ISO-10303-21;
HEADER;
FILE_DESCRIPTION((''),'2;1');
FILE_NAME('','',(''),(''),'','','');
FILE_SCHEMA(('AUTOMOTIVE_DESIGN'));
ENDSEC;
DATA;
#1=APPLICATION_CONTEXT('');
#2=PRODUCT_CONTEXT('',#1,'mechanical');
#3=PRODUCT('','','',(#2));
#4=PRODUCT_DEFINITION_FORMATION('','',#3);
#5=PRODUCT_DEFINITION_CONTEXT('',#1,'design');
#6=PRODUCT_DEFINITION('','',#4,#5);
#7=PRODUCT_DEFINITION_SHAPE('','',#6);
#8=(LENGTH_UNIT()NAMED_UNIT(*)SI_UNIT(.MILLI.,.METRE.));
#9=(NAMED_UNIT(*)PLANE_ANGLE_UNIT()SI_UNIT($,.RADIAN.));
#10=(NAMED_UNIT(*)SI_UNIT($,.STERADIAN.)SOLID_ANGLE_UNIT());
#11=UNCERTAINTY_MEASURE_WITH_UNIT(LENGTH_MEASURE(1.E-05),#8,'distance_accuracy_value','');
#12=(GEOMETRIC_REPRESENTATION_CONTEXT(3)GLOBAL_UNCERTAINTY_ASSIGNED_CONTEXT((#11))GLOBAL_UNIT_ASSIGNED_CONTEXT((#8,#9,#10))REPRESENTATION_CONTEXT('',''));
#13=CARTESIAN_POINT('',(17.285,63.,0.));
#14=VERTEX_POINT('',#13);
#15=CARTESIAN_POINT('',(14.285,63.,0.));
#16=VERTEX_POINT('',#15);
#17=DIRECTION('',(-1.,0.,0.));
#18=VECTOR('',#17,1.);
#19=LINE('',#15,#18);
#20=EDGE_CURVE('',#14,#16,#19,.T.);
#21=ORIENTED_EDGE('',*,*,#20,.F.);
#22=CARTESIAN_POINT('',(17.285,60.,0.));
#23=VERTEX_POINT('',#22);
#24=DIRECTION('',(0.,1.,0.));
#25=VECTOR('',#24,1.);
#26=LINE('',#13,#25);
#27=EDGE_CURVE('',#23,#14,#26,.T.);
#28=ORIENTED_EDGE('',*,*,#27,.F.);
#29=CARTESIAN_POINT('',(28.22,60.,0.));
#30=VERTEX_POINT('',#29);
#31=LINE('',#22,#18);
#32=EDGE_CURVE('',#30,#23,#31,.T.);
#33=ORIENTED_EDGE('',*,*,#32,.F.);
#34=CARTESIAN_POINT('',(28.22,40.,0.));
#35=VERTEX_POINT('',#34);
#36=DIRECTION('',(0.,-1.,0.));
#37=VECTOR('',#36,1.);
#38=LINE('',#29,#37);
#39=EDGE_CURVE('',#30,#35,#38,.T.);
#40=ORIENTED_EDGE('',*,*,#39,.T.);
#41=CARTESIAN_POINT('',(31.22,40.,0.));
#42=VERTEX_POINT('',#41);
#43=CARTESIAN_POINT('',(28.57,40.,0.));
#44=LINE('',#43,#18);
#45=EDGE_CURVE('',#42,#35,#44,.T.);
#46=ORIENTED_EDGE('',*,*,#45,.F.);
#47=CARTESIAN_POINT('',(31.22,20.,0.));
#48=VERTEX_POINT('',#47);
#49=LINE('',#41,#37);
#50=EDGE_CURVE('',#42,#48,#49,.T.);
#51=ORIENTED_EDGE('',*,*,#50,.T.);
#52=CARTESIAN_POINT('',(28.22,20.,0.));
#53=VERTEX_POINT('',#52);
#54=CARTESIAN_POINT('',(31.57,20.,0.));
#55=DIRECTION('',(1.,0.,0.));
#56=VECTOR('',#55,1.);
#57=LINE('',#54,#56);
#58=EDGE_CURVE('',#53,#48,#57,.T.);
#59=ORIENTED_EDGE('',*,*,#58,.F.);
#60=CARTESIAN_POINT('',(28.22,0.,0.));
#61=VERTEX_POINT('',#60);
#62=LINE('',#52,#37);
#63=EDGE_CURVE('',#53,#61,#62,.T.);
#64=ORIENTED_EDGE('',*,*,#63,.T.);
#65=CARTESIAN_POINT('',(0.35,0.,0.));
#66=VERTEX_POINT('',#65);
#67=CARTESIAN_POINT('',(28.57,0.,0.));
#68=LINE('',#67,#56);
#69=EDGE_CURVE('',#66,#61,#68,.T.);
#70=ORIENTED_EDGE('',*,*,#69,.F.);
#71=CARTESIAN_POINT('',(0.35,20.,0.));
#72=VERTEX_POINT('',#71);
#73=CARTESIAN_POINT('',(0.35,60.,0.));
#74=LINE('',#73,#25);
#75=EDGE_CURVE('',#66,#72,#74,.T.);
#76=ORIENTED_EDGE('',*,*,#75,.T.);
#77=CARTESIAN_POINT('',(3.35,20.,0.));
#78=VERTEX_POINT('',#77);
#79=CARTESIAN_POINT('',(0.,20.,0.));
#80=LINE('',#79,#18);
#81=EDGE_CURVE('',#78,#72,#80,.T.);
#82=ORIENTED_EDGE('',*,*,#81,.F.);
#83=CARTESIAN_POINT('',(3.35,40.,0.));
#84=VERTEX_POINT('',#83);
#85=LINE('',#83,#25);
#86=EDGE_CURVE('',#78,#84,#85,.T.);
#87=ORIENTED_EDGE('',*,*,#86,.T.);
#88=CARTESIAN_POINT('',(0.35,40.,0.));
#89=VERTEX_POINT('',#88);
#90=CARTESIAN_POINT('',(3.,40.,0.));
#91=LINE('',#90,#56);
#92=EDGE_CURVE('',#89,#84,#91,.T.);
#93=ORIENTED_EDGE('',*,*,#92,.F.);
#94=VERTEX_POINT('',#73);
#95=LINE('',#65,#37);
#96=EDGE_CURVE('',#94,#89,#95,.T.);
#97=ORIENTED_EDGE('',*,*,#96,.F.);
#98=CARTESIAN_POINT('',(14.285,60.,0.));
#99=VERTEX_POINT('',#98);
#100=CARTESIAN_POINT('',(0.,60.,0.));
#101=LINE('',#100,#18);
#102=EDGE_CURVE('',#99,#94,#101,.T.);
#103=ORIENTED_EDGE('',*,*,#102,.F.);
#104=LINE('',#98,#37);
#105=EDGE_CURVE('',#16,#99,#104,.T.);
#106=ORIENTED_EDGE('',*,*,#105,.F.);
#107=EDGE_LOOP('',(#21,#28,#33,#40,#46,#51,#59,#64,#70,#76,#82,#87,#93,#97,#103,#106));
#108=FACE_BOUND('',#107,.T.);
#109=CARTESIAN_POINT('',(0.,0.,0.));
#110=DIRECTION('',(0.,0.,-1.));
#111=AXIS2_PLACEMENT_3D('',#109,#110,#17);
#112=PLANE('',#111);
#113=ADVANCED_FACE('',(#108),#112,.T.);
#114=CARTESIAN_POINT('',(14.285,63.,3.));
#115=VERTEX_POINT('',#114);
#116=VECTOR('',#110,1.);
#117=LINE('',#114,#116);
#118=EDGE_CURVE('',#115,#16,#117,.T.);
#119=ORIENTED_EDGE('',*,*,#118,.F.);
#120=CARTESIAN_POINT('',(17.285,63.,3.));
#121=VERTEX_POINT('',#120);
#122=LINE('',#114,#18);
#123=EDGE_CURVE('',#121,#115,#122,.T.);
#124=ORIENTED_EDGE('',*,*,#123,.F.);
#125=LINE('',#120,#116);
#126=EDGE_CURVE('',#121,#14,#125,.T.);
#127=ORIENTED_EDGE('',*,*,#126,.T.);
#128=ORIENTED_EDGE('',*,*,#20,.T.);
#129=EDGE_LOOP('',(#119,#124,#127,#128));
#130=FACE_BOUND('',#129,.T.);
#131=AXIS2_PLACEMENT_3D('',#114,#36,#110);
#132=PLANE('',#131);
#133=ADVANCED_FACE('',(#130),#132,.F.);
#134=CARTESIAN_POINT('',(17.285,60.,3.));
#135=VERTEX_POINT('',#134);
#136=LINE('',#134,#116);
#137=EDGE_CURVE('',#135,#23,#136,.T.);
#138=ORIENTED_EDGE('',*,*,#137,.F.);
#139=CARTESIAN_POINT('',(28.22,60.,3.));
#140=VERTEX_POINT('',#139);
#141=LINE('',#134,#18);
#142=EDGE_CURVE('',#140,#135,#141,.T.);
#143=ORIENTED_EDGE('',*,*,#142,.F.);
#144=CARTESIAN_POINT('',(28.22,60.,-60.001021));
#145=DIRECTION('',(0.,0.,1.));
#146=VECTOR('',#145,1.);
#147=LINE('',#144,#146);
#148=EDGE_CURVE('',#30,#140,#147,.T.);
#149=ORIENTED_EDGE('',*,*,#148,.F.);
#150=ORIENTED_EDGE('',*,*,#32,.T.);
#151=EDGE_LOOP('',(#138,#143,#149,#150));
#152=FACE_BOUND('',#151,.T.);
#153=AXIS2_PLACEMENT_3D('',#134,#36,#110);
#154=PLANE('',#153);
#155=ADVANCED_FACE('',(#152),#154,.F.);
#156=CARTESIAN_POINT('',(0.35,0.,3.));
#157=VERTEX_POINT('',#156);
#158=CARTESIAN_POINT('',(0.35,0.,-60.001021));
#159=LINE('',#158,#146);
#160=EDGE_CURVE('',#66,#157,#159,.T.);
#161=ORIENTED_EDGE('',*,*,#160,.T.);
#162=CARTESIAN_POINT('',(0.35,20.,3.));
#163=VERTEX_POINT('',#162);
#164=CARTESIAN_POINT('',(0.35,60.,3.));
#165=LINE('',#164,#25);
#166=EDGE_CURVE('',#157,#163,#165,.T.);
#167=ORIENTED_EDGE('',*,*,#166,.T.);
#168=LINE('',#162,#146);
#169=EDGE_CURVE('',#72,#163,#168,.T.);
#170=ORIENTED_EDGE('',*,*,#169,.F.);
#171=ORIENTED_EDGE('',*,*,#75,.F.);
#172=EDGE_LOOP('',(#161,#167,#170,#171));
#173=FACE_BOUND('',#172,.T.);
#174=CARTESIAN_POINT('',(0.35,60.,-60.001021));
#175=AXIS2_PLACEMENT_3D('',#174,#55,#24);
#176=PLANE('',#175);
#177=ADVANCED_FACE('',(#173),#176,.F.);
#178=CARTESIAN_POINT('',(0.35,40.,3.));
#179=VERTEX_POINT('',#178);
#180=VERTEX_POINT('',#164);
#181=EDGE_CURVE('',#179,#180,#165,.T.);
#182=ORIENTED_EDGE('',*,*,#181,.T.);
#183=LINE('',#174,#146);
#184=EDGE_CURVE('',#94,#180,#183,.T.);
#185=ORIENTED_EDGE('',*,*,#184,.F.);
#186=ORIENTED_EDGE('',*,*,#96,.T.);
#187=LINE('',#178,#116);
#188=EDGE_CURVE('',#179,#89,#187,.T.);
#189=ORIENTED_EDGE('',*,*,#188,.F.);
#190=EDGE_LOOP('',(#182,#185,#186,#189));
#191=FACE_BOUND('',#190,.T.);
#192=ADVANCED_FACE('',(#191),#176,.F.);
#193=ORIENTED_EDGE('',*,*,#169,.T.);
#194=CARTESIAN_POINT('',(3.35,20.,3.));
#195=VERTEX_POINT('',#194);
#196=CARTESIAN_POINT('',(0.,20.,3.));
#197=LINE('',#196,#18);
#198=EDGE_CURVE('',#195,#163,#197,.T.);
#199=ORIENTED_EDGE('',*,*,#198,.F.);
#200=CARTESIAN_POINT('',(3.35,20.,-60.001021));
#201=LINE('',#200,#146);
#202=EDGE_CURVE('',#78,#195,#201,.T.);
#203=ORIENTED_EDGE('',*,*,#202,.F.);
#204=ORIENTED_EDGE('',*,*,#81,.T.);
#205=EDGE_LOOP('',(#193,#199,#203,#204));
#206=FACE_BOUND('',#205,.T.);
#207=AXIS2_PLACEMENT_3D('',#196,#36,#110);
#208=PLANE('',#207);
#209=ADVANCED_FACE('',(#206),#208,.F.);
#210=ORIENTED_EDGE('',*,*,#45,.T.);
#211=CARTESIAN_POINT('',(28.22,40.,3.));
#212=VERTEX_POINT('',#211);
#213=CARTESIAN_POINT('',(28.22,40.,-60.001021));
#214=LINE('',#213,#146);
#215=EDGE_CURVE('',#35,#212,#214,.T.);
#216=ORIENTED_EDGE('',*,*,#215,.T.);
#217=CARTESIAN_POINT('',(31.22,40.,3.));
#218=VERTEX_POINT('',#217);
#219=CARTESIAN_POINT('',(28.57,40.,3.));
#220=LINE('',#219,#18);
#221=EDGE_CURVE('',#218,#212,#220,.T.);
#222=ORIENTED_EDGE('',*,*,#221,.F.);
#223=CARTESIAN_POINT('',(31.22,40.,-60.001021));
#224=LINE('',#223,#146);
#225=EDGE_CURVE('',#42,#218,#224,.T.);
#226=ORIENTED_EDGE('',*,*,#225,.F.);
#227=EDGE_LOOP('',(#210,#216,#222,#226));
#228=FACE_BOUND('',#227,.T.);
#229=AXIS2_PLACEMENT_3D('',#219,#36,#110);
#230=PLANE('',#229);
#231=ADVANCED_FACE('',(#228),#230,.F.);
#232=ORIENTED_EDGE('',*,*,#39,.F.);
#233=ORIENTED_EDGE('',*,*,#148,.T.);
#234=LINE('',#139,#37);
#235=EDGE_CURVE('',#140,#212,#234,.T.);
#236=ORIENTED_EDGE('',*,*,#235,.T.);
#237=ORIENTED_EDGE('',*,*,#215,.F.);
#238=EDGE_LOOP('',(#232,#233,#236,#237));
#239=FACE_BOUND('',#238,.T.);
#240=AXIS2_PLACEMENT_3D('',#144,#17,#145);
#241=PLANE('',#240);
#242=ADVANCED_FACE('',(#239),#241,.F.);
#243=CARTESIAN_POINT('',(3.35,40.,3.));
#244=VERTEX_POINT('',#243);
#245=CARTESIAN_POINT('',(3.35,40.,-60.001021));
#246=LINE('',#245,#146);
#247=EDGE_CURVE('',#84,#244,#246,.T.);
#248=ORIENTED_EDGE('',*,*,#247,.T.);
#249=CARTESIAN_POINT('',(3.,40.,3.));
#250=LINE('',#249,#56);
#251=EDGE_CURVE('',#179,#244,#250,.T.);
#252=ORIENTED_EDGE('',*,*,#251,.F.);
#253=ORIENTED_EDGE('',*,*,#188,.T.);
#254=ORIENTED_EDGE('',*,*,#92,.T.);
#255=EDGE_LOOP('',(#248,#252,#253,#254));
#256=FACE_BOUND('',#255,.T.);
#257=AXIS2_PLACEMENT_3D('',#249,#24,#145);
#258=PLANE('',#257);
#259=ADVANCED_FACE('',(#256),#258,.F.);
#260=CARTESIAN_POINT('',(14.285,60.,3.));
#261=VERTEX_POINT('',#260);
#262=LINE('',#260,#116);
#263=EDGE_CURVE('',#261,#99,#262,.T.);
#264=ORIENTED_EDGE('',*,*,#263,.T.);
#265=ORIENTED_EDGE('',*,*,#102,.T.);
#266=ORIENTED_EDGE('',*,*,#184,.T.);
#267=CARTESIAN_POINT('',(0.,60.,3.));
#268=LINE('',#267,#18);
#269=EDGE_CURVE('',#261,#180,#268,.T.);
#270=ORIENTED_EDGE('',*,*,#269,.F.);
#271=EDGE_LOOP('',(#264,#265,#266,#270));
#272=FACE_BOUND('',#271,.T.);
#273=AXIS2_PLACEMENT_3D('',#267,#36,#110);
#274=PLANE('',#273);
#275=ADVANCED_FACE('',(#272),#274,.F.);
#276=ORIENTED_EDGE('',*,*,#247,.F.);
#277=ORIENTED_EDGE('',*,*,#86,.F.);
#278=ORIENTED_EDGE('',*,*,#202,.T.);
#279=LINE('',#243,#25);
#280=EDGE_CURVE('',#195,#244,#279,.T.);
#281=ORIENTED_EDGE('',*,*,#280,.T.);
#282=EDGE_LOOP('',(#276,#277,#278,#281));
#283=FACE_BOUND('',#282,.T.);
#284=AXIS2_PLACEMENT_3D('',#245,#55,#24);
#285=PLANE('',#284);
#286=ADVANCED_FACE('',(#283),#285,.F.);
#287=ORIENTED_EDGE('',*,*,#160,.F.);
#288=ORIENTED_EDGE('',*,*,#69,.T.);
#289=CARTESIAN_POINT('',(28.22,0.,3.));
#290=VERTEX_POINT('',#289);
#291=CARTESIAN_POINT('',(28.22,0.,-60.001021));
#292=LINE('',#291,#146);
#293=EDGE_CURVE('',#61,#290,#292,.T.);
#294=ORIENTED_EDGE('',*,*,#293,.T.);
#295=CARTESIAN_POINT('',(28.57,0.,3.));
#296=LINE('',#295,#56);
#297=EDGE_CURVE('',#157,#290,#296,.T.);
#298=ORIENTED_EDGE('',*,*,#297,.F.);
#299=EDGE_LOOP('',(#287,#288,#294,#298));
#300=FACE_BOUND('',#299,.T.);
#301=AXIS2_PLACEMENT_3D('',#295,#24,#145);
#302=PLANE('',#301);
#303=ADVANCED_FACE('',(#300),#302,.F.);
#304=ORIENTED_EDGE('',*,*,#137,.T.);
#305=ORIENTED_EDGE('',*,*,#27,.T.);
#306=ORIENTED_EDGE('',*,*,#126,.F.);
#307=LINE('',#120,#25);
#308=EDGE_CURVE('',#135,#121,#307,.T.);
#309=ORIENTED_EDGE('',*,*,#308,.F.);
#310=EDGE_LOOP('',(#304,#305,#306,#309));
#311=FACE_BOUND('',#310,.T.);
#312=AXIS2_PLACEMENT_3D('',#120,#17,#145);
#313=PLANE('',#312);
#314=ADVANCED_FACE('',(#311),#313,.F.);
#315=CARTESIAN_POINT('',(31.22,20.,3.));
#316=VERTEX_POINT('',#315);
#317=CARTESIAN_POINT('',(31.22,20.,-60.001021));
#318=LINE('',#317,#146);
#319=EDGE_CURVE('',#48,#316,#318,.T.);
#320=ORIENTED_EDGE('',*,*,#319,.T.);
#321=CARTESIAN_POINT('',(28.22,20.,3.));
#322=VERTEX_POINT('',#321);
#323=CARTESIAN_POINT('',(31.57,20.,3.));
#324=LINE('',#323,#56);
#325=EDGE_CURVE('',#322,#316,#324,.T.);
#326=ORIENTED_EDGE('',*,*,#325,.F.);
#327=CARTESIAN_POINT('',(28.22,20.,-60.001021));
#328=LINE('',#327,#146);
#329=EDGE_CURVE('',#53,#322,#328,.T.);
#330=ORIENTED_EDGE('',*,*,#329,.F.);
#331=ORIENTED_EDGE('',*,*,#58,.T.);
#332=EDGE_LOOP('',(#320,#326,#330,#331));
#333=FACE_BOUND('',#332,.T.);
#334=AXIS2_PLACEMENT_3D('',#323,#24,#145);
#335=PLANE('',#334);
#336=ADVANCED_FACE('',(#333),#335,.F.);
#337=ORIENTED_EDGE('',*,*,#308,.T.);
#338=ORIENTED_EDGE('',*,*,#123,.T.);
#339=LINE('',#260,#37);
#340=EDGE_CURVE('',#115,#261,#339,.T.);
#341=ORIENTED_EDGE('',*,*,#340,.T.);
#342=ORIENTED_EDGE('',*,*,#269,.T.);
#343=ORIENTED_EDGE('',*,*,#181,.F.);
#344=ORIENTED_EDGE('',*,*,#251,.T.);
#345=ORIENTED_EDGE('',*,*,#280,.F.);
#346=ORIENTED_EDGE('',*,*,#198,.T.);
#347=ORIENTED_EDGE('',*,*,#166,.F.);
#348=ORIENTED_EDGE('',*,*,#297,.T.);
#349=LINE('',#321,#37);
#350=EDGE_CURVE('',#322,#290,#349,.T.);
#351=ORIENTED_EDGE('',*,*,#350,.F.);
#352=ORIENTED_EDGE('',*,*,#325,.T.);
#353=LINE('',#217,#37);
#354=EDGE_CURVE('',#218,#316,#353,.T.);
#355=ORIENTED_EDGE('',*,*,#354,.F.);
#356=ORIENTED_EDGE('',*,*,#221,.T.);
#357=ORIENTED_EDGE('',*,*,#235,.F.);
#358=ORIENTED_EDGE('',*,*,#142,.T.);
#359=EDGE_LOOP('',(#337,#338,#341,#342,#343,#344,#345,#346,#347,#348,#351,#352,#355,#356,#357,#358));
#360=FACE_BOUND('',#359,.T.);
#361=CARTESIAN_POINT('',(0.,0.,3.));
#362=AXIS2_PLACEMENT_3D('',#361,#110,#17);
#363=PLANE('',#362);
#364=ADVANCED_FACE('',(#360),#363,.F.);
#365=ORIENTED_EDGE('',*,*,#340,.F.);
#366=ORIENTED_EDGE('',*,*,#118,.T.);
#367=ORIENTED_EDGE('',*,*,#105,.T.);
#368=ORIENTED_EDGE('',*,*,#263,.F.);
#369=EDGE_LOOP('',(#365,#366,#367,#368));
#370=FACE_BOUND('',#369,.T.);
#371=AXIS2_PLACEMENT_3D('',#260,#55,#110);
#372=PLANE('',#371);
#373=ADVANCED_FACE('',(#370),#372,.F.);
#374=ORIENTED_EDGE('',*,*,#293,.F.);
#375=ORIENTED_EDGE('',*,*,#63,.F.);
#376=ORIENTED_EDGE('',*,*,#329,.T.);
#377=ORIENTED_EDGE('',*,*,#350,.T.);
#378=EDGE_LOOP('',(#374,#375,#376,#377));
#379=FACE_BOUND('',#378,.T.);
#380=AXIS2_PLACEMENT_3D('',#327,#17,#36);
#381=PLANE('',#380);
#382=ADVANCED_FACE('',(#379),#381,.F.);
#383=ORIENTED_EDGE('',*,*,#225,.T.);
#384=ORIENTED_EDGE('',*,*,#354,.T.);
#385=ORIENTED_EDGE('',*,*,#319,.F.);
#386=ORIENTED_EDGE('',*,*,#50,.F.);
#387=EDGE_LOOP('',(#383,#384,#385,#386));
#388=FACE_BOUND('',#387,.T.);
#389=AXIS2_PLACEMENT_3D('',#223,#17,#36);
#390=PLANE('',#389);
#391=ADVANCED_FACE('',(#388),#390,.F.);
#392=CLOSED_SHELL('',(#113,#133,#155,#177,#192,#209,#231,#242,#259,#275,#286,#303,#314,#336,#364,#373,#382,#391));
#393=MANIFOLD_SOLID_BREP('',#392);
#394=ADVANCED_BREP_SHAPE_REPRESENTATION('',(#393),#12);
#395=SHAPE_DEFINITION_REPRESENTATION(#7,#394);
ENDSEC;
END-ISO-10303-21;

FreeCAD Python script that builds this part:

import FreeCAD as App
import Part
import Sketcher

V = App.Vector

doc = App.newDocument("Part")
body = doc.addObject("PartDesign::Body", "Body")

# Sketch on XY plane
sketch1 = body.newObject("Sketcher::SketchObject", "Sketch")
sketch1.AttachmentSupport = (doc.getObject("XY_Plane"), [""])
sketch1.MapMode = "FlatFace"
sketch1.addGeometry([
    Part.LineSegment(V(0, 0, 0), V(28.6, 0, 0)),  # 0
    Part.LineSegment(V(28.6, 0, 0), V(28.6, 20, 0)),  # 1
    Part.LineSegment(V(28.6, 20, 0), V(31.6, 20, 0)),  # 2
    Part.LineSegment(V(31.6, 20, 0), V(31.6, 40, 0)),  # 3
    Part.LineSegment(V(31.6, 40, 0), V(28.6, 40, 0)),  # 4
    Part.LineSegment(V(28.6, 40, 0), V(28.6, 60, 0)),  # 5
    Part.LineSegment(V(28.6, 60, 0), V(17.3, 60, 0)),  # 6
    Part.LineSegment(V(17.3, 60, 0), V(17.3, 63, 0)),  # 7
    Part.LineSegment(V(17.3, 63, 0), V(14.3, 63, 0)),  # 8
    Part.LineSegment(V(14.3, 63, 0), V(14.3, 60, 0)),  # 9
    Part.LineSegment(V(14.3, 60, 0), V(0, 60, 0)),  # 10
    Part.LineSegment(V(0, 60, 0), V(0, 40, 0)),  # 11
    Part.LineSegment(V(0, 40, 0), V(3, 40, 0)),  # 12
    Part.LineSegment(V(3, 40, 0), V(3, 20, 0)),  # 13
    Part.LineSegment(V(3, 20, 0), V(0, 20, 0)),  # 14
    Part.LineSegment(V(0, 20, 0), V(0, 0, 0)),  # 15
], False)
sketch1.addConstraint([
    Sketcher.Constraint("Coincident", 0, 2, 1, 1),
    Sketcher.Constraint("Coincident", 1, 2, 2, 1),
    Sketcher.Constraint("Coincident", 2, 2, 3, 1),
    Sketcher.Constraint("Coincident", 3, 2, 4, 1),
    Sketcher.Constraint("Coincident", 4, 2, 5, 1),
    Sketcher.Constraint("Coincident", 5, 2, 6, 1),
    Sketcher.Constraint("Coincident", 6, 2, 7, 1),
    Sketcher.Constraint("Coincident", 7, 2, 8, 1),
    Sketcher.Constraint("Coincident", 8, 2, 9, 1),
    Sketcher.Constraint("Coincident", 9, 2, 10, 1),
    Sketcher.Constraint("Coincident", 10, 2, 11, 1),
    Sketcher.Constraint("Coincident", 11, 2, 12, 1),
    Sketcher.Constraint("Coincident", 12, 2, 13, 1),
    Sketcher.Constraint("Coincident", 13, 2, 14, 1),
    Sketcher.Constraint("Coincident", 14, 2, 15, 1),
    Sketcher.Constraint("Coincident", 15, 2, 0, 1),
    Sketcher.Constraint("Horizontal", 0),
    Sketcher.Constraint("Vertical", 1),
    Sketcher.Constraint("Horizontal", 2),
    Sketcher.Constraint("Vertical", 3),
    Sketcher.Constraint("Horizontal", 4),
    Sketcher.Constraint("Vertical", 5),
    Sketcher.Constraint("Horizontal", 6),
    Sketcher.Constraint("Vertical", 7),
    Sketcher.Constraint("Horizontal", 8),
    Sketcher.Constraint("Vertical", 9),
    Sketcher.Constraint("Horizontal", 10),
    Sketcher.Constraint("Vertical", 11),
    Sketcher.Constraint("Horizontal", 12),
    Sketcher.Constraint("Vertical", 13),
    Sketcher.Constraint("Horizontal", 14),
    Sketcher.Constraint("Vertical", 15),
    Sketcher.Constraint("Coincident", 15, 2, -1, 1),
    Sketcher.Constraint("PointOnObject", 10, 2, -2),
    Sketcher.Constraint("Horizontal", 6, 2, 9, 2),
    Sketcher.Constraint("Horizontal", 4, 2, 11, 2),
    Sketcher.Constraint("Horizontal", 2, 2, 13, 2),
    Sketcher.Constraint("Vertical", 1, 2, 4, 2),
    Sketcher.Constraint("Equal", 4, 8),
    Sketcher.Constraint("Equal", 8, 12),
    Sketcher.Constraint("Equal", 1, 3),
    Sketcher.Constraint("Equal", 3, 5),
    Sketcher.Constraint("Equal", 14, 7),
    Sketcher.Constraint("DistanceX", 2, 1, 2, 2, 3.0),
    Sketcher.Constraint("DistanceY", 1, 1, 1, 2, 20.0),
    Sketcher.Constraint("DistanceX", 0, 1, 0, 2, 28.57),
    Sketcher.Constraint("DistanceX", 6, 2, 6, 1, 11.285),
])
pad1 = body.newObject("PartDesign::Pad", "Pad")
pad1.Profile = sketch1
pad1.Length = 3

# Sketch on XY plane
sketch2 = body.newObject("Sketcher::SketchObject", "Sketch001")
sketch2.AttachmentSupport = (doc.getObject("XY_Plane"), [""])
sketch2.MapMode = "FlatFace"
sketch2.AttachmentOffset = App.Placement(V(0, 0, 3), App.Rotation())
sketch2.addGeometry([
    Part.LineSegment(V(0, 60, 0), V(0, 0, 0)),  # 0
    Part.LineSegment(V(0, 0, 0), V(0.35, 0, 0)),  # 1
    Part.LineSegment(V(0.35, 0, 0), V(0.35, 60, 0)),  # 2
    Part.LineSegment(V(0.35, 60, 0), V(0, 60, 0)),  # 3
    Part.LineSegment(V(3, 40, 0), V(3, 20, 0)),  # 4
    Part.LineSegment(V(3, 20, 0), V(3.35, 20, 0)),  # 5
    Part.LineSegment(V(3.35, 20, 0), V(3.35, 40, 0)),  # 6
    Part.LineSegment(V(3.35, 40, 0), V(3, 40, 0)),  # 7
    Part.LineSegment(V(28.22, 60, 0), V(28.22, 40, 0)),  # 8
    Part.LineSegment(V(28.22, 40, 0), V(28.57, 40, 0)),  # 9
    Part.LineSegment(V(28.57, 40, 0), V(28.57, 60, 0)),  # 10
    Part.LineSegment(V(28.57, 60, 0), V(28.22, 60, 0)),  # 11
    Part.LineSegment(V(31.22, 40, 0), V(31.22, 20, 0)),  # 12
    Part.LineSegment(V(31.22, 20, 0), V(31.57, 20, 0)),  # 13
    Part.LineSegment(V(31.57, 20, 0), V(31.57, 40, 0)),  # 14
    Part.LineSegment(V(31.57, 40, 0), V(31.22, 40, 0)),  # 15
    Part.LineSegment(V(28.22, 20, 0), V(28.22, 0, 0)),  # 16
    Part.LineSegment(V(28.22, 0, 0), V(28.57, 0, 0)),  # 17
    Part.LineSegment(V(28.57, 0, 0), V(28.57, 20, 0)),  # 18
    Part.LineSegment(V(28.57, 20, 0), V(28.22, 20, 0)),  # 19
], False)
sketch2.addConstraint([
    Sketcher.Constraint("Coincident", 0, 2, 1, 1),
    Sketcher.Constraint("Coincident", 1, 2, 2, 1),
    Sketcher.Constraint("Coincident", 2, 2, 3, 1),
    Sketcher.Constraint("Coincident", 3, 2, 0, 1),
    Sketcher.Constraint("Coincident", 4, 2, 5, 1),
    Sketcher.Constraint("Coincident", 5, 2, 6, 1),
    Sketcher.Constraint("Coincident", 6, 2, 7, 1),
    Sketcher.Constraint("Coincident", 7, 2, 4, 1),
    Sketcher.Constraint("Coincident", 8, 2, 9, 1),
    Sketcher.Constraint("Coincident", 9, 2, 10, 1),
    Sketcher.Constraint("Coincident", 10, 2, 11, 1),
    Sketcher.Constraint("Coincident", 11, 2, 8, 1),
    Sketcher.Constraint("Coincident", 12, 2, 13, 1),
    Sketcher.Constraint("Coincident", 13, 2, 14, 1),
    Sketcher.Constraint("Coincident", 14, 2, 15, 1),
    Sketcher.Constraint("Coincident", 15, 2, 12, 1),
    Sketcher.Constraint("Coincident", 16, 2, 17, 1),
    Sketcher.Constraint("Coincident", 17, 2, 18, 1),
    Sketcher.Constraint("Coincident", 18, 2, 19, 1),
    Sketcher.Constraint("Coincident", 19, 2, 16, 1),
    Sketcher.Constraint("Vertical", 0),
    Sketcher.Constraint("Horizontal", 1),
    Sketcher.Constraint("Vertical", 2),
    Sketcher.Constraint("Horizontal", 3),
    Sketcher.Constraint("Vertical", 4),
    Sketcher.Constraint("Horizontal", 5),
    Sketcher.Constraint("Vertical", 6),
    Sketcher.Constraint("Horizontal", 7),
    Sketcher.Constraint("Vertical", 8),
    Sketcher.Constraint("Horizontal", 9),
    Sketcher.Constraint("Vertical", 10),
    Sketcher.Constraint("Horizontal", 11),
    Sketcher.Constraint("Vertical", 12),
    Sketcher.Constraint("Horizontal", 13),
    Sketcher.Constraint("Vertical", 14),
    Sketcher.Constraint("Horizontal", 15),
    Sketcher.Constraint("Vertical", 16),
    Sketcher.Constraint("Horizontal", 17),
    Sketcher.Constraint("Vertical", 18),
    Sketcher.Constraint("Horizontal", 19),
    Sketcher.Constraint("Coincident", 0, 2, -1, 1),
    Sketcher.Constraint("PointOnObject", 16, 2, -1),
    Sketcher.Constraint("Horizontal", 7, 2, 8, 2),
    Sketcher.Constraint("Horizontal", 3, 2, 10, 2),
    Sketcher.Constraint("Horizontal", 5, 2, 12, 2),
    Sketcher.Constraint("Horizontal", 9, 2, 14, 2),
    Sketcher.Constraint("Horizontal", 13, 2, 18, 2),
    Sketcher.Constraint("Vertical", 11, 2, 16, 2),
    Sketcher.Constraint("Vertical", 10, 2, 17, 2),
    Sketcher.Constraint("Equal", 3, 5),
    Sketcher.Constraint("Equal", 7, 9),
    Sketcher.Constraint("Equal", 11, 13),
    Sketcher.Constraint("Equal", 6, 8),
    Sketcher.Constraint("Equal", 14, 16),
    Sketcher.Constraint("DistanceY", 0, 2, 0, 1, 60.0),
    Sketcher.Constraint("DistanceX", -1, 1, 4, 2, 3.0),
    Sketcher.Constraint("DistanceX", 8, 2, 12, 2, 3.0),
    Sketcher.Constraint("DistanceX", 1, 1, 1, 2, 0.35),
    Sketcher.Constraint("DistanceX", -1, 1, 8, 2, 28.22),
])
pocket1 = body.newObject("PartDesign::Pocket", "Pocket")
pocket1.Profile = sketch2
pocket1.Length = 3

doc.recompute()
